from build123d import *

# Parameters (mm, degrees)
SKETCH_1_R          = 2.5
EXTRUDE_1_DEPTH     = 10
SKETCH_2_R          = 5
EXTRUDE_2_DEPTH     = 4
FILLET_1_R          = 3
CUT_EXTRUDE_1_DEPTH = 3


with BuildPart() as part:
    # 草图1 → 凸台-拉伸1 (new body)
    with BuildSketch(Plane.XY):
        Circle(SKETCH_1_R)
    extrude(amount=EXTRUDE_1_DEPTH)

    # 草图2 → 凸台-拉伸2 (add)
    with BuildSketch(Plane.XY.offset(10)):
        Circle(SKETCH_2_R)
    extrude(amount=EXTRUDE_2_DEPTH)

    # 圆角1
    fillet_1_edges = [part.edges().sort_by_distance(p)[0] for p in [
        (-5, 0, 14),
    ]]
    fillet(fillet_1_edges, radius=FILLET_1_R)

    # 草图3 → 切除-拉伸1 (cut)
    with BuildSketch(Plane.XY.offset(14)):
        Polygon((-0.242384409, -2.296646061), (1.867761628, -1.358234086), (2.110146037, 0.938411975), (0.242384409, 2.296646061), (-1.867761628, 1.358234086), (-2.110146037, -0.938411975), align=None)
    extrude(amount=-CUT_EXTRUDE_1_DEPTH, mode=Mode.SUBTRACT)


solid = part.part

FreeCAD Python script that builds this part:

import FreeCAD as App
import Part
import Sketcher

V = App.Vector
Q = App.Units.Quantity


def edges_at(feature, points):
    """Names of the edges that pass closest to the given points."""
    edges = feature.Shape.Edges
    near = lambda p: min(range(len(edges)), key=lambda i: edges[i].distToShape(Part.Vertex(*p))[0])
    return sorted({f"Edge{near(p) + 1}" for p in points})

doc = App.newDocument("Part")
body = doc.addObject("PartDesign::Body", "Body")

sketch1 = body.newObject("Sketcher::SketchObject", "Sketch")
sketch1.AttachmentSupport = (doc.getObject("XY_Plane"), [""])
sketch1.MapMode = "FlatFace"
sketch1.addGeometry(Part.Circle(V(0, 0, 0), V(0, 0, 1), 2.5), False)
sketch1.addConstraint([
    Sketcher.Constraint("Coincident", 0, 3, -1, 1),
    Sketcher.Constraint("Diameter", 0, Q("5 mm")),
])
pad1 = body.newObject("PartDesign::Pad", "Pad")
pad1.Profile = sketch1
pad1.Length = 10

sketch2 = body.newObject("Sketcher::SketchObject", "Sketch001")
sketch2.AttachmentSupport = (doc.getObject("XY_Plane"), [""])
sketch2.MapMode = "FlatFace"
sketch2.AttachmentOffset = App.Placement(V(0, 0, 10), App.Rotation())
sketch2.addGeometry(Part.Circle(V(0, 0, 0), V(0, 0, 1), 5), False)
sketch2.addConstraint([
    Sketcher.Constraint("Coincident", 0, 3, -1, 1),
    Sketcher.Constraint("Diameter", 0, Q("10 mm")),
])
pad2 = body.newObject("PartDesign::Pad", "Pad001")
pad2.Profile = sketch2
pad2.Length = 4
doc.recompute()

fillet = body.newObject("PartDesign::Fillet", "Fillet")
fillet.Base = (pad2, edges_at(pad2, [(-5, 0, 14)]))
fillet.Radius = 3

sketch3 = body.newObject("Sketcher::SketchObject", "Sketch002")
sketch3.AttachmentSupport = (doc.getObject("XY_Plane"), [""])
sketch3.MapMode = "FlatFace"
sketch3.AttachmentOffset = App.Placement(V(0, 0, 14), App.Rotation())
sketch3.addGeometry([
    Part.LineSegment(V(-0.2, -2.3, 0), V(1.9, -1.4, 0)),
    Part.LineSegment(V(1.9, -1.4, 0), V(2.1, 0.9, 0)),
    Part.LineSegment(V(2.1, 0.9, 0), V(0.2, 2.3, 0)),
    Part.LineSegment(V(0.2, 2.3, 0), V(-1.9, 1.4, 0)),
    Part.LineSegment(V(-1.9, 1.4, 0), V(-2.1, -0.9, 0)),
    Part.LineSegment(V(-2.1, -0.9, 0), V(-0.2, -2.3, 0)),
], False)
sketch3.addConstraint([
    Sketcher.Constraint("Coincident", 0, 2, 1, 1),
    Sketcher.Constraint("Coincident", 1, 2, 2, 1),
    Sketcher.Constraint("Coincident", 2, 2, 3, 1),
    Sketcher.Constraint("Coincident", 3, 2, 4, 1),
    Sketcher.Constraint("Coincident", 4, 2, 5, 1),
    Sketcher.Constraint("Coincident", 5, 2, 0, 1),
    Sketcher.Constraint("Symmetric", 0, 2, 3, 2, -1, 1),
    Sketcher.Constraint("Symmetric", 1, 2, 4, 2, -1, 1),
    Sketcher.Constraint("Symmetric", 2, 2, 5, 2, -1, 1),
    Sketcher.Constraint("Equal", 0, 1),
    Sketcher.Constraint("Equal", 1, 2),
    Sketcher.Constraint("Distance", 0, Q("2.309401 mm")),
    Sketcher.Constraint("DistanceX", -1, 1, 0, 2, Q("1.867762 mm")),
    Sketcher.Constraint("DistanceY", -1, 1, 1, 2, Q("0.938412 mm")),
    Sketcher.Constraint("DistanceX", 2, 2, 1, 2, Q("1.867762 mm")),
])
pocket1 = body.newObject("PartDesign::Pocket", "Pocket")
pocket1.Profile = sketch3
pocket1.Length = 3

doc.recompute()
